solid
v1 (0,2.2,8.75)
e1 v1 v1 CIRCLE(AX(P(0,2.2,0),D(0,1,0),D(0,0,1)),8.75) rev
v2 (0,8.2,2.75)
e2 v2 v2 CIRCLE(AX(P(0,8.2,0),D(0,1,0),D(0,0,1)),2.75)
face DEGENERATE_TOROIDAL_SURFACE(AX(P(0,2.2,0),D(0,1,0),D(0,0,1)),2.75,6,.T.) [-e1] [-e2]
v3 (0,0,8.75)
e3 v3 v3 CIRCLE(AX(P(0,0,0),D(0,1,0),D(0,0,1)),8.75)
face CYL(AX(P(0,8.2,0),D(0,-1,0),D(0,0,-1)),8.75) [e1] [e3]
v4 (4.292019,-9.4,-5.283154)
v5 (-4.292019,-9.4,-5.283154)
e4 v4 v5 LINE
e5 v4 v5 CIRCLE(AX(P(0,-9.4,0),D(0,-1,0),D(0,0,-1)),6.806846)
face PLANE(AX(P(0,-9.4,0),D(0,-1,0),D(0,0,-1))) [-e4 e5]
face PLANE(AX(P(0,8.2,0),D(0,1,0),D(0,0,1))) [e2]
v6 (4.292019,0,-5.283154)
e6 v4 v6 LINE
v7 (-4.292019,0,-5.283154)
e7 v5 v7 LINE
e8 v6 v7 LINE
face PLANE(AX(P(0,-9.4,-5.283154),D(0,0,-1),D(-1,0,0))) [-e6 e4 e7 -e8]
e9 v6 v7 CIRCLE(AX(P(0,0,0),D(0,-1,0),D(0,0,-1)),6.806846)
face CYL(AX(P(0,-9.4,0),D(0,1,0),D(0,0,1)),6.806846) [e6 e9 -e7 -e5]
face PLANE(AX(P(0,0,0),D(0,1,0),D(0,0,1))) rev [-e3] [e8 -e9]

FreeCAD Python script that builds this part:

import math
import FreeCAD as App
import Part
import Sketcher
Q = App.Units.Quantity


def edges_at(feature, points):
    """Names of the edges that pass closest to the given points."""
    edges = feature.Shape.Edges
    near = lambda p: min(range(len(edges)), key=lambda i: edges[i].distToShape(Part.Vertex(*p))[0])
    return sorted({f"Edge{near(p) + 1}" for p in points})

doc = App.newDocument("Part")
params = doc.addObject("Spreadsheet::Sheet", "Params")
for row, (alias, value) in enumerate([
    ("sketch1_diameter", "17.5 mm"),
    ("pad1_length", "8.2 mm"),
    ("fillet_radius", "6 mm"),
    ("pad2_length", "9.4 mm"),
], start=1):
    params.set(f"A{row}", alias)
    params.set(f"B{row}", "=" + value)
    params.setAlias(f"B{row}", alias)

body = doc.addObject("PartDesign::Body", "Body")

sketch1 = body.newObject("Sketcher::SketchObject", "Sketch")
sketch1.AttachmentSupport = (doc.getObject("XZ_Plane"), [""])
sketch1.MapMode = "FlatFace"
sketch1.addGeometry(Part.Circle(App.Vector(0, 0, 0), App.Vector(0, 0, 1), 8.75), False)
sketch1.addConstraint([
    Sketcher.Constraint("Coincident", 0, 3, -1, 1),
    Sketcher.Constraint("Diameter", 0, Q("17.5 mm")),
])
sketch1.setExpression("Constraints[1]", "Params.sketch1_diameter")
pad1 = body.newObject("PartDesign::Pad", "Pad")
pad1.Profile = sketch1
pad1.setExpression("Length", "Params.pad1_length")
pad1.Reversed = True
doc.recompute()

fillet = body.newObject("PartDesign::Fillet", "Fillet")
fillet.Base = (pad1, edges_at(pad1, [(-8.75, 8.2, 0)]))
fillet.setExpression("Radius", "Params.fillet_radius")

sketch2 = body.newObject("Sketcher::SketchObject", "Sketch001")
sketch2.AttachmentSupport = (doc.getObject("XZ_Plane"), [""])
sketch2.MapMode = "FlatFace"
sketch2.addGeometry([
    Part.ArcOfCircle(Part.Circle(App.Vector(0, 0, 0), App.Vector(0, 0, 1), 6.806846), math.radians(-50.909692), math.radians(0)),
    Part.ArcOfCircle(Part.Circle(App.Vector(0, 0, 0), App.Vector(0, 0, 1), 6.806846), math.radians(0), math.radians(180)),
    Part.ArcOfCircle(Part.Circle(App.Vector(0, 0, 0), App.Vector(0, 0, 1), 6.806846), math.radians(180), math.radians(230.909692)),
    Part.LineSegment(App.Vector(-4.292019, -5.283154, 0), App.Vector(4.292019, -5.283154, 0)),
], False)
sketch2.addConstraint([
    Sketcher.Constraint("Tangent", 0, 2, 1, 1),
    Sketcher.Constraint("Tangent", 1, 2, 2, 1),
    Sketcher.Constraint("Coincident", 2, 2, 3, 1),
    Sketcher.Constraint("Coincident", 3, 2, 0, 1),
    Sketcher.Constraint("Horizontal", 3),
    Sketcher.Constraint("Coincident", 0, 3, -1, 1),
    Sketcher.Constraint("Equal", 0, 1),
    Sketcher.Constraint("Equal", 1, 2),
    Sketcher.Constraint("PointOnObject", 0, 2, -1),
    Sketcher.Constraint("PointOnObject", 1, 2, -1),
    Sketcher.Constraint("Radius", 0, Q("6.806846 mm")),
    Sketcher.Constraint("DistanceX", 3, 1, 3, 2, Q("8.584039 mm")),
])
pad2 = body.newObject("PartDesign::Pad", "Pad001")
pad2.Profile = sketch2
pad2.setExpression("Length", "Params.pad2_length")

doc.recompute()
